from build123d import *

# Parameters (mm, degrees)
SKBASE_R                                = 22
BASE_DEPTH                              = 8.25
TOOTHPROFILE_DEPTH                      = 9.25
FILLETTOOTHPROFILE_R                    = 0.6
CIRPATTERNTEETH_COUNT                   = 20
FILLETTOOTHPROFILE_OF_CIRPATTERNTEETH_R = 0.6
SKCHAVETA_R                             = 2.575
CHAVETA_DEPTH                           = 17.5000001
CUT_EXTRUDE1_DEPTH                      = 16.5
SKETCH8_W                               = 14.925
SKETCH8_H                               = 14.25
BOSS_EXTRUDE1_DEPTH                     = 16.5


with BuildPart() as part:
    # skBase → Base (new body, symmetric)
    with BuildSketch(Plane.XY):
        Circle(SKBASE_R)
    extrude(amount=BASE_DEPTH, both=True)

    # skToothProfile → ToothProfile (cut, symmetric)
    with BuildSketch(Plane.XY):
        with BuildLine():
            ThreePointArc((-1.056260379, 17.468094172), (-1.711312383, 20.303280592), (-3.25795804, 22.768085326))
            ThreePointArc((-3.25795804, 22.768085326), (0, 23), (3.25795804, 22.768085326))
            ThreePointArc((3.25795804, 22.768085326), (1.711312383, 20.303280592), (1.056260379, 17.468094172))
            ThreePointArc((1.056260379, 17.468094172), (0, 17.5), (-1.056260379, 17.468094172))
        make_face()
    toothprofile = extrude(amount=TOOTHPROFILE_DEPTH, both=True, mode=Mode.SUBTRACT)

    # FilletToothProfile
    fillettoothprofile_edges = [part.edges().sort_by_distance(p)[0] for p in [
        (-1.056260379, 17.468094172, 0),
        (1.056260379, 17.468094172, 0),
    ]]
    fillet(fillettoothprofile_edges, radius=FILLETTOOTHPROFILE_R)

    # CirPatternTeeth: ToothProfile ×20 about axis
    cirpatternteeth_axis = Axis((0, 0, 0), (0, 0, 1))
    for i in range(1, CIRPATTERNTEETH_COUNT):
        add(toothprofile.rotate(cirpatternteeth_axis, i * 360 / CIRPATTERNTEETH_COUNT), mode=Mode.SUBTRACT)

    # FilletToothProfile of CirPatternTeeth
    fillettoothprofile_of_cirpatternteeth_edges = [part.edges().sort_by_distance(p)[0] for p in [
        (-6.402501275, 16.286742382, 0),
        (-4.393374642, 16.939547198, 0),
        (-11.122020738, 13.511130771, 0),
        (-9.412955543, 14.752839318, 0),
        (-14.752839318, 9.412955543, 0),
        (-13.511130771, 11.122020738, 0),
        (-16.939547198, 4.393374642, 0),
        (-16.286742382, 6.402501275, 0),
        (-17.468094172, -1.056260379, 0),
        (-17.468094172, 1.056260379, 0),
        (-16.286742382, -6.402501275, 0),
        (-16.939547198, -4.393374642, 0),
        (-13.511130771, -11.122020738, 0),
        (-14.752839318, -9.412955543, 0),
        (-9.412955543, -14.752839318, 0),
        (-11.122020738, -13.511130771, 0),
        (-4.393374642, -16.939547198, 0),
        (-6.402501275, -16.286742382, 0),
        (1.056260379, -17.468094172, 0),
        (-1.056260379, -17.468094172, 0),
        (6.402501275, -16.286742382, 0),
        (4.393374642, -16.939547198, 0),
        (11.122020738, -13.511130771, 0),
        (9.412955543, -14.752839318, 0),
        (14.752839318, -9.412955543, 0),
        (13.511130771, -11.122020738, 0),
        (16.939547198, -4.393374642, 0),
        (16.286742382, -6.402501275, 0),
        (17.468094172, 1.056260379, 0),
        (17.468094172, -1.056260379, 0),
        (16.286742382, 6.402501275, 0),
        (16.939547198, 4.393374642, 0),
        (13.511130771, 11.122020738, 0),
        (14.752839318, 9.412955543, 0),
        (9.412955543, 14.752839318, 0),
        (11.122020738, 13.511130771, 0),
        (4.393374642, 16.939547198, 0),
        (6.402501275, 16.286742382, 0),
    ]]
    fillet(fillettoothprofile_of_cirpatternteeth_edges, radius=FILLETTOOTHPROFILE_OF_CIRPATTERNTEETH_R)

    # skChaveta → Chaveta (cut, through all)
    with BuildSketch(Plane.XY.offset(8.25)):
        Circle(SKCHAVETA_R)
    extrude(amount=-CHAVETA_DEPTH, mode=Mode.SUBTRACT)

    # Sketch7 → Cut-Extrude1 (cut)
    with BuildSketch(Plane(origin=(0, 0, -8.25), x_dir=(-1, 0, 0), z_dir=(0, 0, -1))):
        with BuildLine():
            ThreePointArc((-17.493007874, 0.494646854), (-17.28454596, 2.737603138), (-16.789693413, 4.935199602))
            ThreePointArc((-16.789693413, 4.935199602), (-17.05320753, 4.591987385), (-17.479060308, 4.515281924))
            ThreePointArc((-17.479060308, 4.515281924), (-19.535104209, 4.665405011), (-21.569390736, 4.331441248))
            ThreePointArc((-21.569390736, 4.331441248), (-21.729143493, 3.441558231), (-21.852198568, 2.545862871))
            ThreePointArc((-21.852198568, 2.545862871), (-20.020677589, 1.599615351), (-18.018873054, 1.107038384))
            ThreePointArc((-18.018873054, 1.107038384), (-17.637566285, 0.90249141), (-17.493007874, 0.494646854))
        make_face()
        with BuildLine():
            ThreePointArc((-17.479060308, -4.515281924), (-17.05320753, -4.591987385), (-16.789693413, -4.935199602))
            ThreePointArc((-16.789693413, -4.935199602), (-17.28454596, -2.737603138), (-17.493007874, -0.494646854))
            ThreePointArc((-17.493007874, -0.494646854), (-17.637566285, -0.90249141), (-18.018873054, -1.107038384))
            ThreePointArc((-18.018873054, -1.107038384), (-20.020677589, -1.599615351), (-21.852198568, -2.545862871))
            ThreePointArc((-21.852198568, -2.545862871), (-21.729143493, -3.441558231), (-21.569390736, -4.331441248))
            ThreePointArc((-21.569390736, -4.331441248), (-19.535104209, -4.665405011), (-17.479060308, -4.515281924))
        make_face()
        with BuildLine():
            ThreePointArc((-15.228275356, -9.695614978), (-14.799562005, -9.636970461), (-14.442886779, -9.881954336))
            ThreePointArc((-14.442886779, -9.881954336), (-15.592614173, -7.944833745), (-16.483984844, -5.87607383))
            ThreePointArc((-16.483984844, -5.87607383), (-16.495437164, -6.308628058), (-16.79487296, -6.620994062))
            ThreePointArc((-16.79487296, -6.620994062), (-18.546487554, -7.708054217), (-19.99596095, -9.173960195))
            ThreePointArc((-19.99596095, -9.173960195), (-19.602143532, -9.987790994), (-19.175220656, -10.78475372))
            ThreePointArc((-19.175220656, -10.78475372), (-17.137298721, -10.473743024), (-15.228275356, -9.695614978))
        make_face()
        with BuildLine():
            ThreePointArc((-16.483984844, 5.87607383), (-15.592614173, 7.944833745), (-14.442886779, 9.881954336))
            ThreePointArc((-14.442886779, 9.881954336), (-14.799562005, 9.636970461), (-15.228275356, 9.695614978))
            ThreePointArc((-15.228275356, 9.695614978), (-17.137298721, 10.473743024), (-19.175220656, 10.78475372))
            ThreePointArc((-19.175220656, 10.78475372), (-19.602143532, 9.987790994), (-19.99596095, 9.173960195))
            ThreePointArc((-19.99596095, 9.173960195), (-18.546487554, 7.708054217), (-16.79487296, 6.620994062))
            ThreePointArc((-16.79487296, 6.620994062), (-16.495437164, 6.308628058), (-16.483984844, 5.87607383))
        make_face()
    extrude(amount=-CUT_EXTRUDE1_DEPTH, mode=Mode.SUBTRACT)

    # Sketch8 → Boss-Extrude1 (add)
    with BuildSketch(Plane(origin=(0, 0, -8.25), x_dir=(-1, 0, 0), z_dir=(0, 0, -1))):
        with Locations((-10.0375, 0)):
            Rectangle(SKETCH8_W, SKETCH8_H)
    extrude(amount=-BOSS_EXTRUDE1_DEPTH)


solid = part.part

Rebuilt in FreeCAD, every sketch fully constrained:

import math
import FreeCAD as App
import Part
import Sketcher
from FreeCAD import Vector
Q = App.Units.Quantity


def edges_at(feature, points):
    """Names of the edges that pass closest to the given points."""
    edges = feature.Shape.Edges
    near = lambda p: min(range(len(edges)), key=lambda i: edges[i].distToShape(Part.Vertex(*p))[0])
    return sorted({f"Edge{near(p) + 1}" for p in points})


def add_polygon(sketch, points):
    """Adds a closed chain of lines whose ends are joined by coincident constraints."""
    first, n = sketch.GeometryCount, len(points)
    for a, b in zip(points, points[1:] + points[:1]):
        sketch.addGeometry(Part.LineSegment(App.Vector(*a, 0), App.Vector(*b, 0)), False)
    for i in range(n):
        sketch.addConstraint(Sketcher.Constraint("Coincident", first + i, 2, first + (i + 1) % n, 1))

doc = App.newDocument("Part")
body = doc.addObject("PartDesign::Body", "Body")

# Sketch on XY plane
sketch1 = doc.addObject("Sketcher::SketchObject", "Sketch")
body.addObject(sketch1)
sketch1.AttachmentSupport = (doc.XY_Plane, [""])
sketch1.MapMode = "FlatFace"
sketch1.addGeometry(Part.Circle(Vector(0, 0, 0), Vector(0, 0, 1), 22), False)
sketch1.addConstraint([
    Sketcher.Constraint("Coincident", 0, 3, -1, 1),
    Sketcher.Constraint("Diameter", 0, Q("44 mm")),
])
pad1 = doc.addObject("PartDesign::Pad", "Pad")
body.addObject(pad1)
pad1.Profile = sketch1
pad1.Length = 16.5
pad1.Midplane = True

# Sketch on XY plane
sketch2 = doc.addObject("Sketcher::SketchObject", "Sketch001")
body.addObject(sketch2)
sketch2.AttachmentSupport = (doc.XY_Plane, [""])
sketch2.MapMode = "FlatFace"
sketch2.addGeometry([
    Part.ArcOfCircle(Part.Circle(Vector(-9.8, 16.9, 0), Vector(0, 0, 1), 8.8), math.radians(3), math.radians(42)),
    Part.ArcOfCircle(Part.Circle(Vector(0, 0, 0), Vector(0, 0, 1), 17.5), math.radians(86.54), math.radians(93.46)),
    Part.ArcOfCircle(Part.Circle(Vector(9.8, 16.9, 0), Vector(0, 0, 1), 8.8), math.radians(138), math.radians(177)),
    Part.ArcOfCircle(Part.Circle(Vector(0, 0, 0), Vector(0, 0, 1), 23), math.radians(81.86), math.radians(98.14)),
], False)
sketch2.addConstraint([
    Sketcher.Constraint("Coincident", 0, 1, 1, 2),
    Sketcher.Constraint("Coincident", 1, 1, 2, 2),
    Sketcher.Constraint("Coincident", 2, 1, 3, 1),
    Sketcher.Constraint("Coincident", 3, 2, 0, 2),
    Sketcher.Constraint("Coincident", 1, 3, -1, 1),
    Sketcher.Constraint("Coincident", 3, 3, -1, 1),
    Sketcher.Constraint("Equal", 0, 2),
    Sketcher.Constraint("Symmetric", 0, 3, 2, 3, -2),
    Sketcher.Constraint("Radius", 3, Q("23 mm")),
    Sketcher.Constraint("Radius", 1, Q("17.5 mm")),
    Sketcher.Constraint("Radius", 0, Q("8.77026 mm")),
    Sketcher.Constraint("DistanceX", 0, 3, -1, 1, Q("9.81053 mm")),
    Sketcher.Constraint("DistanceY", -1, 1, 0, 3, Q("16.938741 mm")),
])
pocket1 = doc.addObject("PartDesign::Pocket", "Pocket")
body.addObject(pocket1)
pocket1.Profile = sketch2
pocket1.Length = 18.5
pocket1.Midplane = True
doc.recompute()

fillet = doc.addObject("PartDesign::Fillet", "Fillet")
body.addObject(fillet)
fillet.Base = (pocket1, edges_at(pocket1, [(-1.056, 17.468, 0), (1.056, 17.468, 0)]))
fillet.Radius = 0.6
doc.recompute()

polarpattern = doc.addObject("PartDesign::PolarPattern", "PolarPattern")
body.addObject(polarpattern)
polarpattern.Originals = [pocket1]
polarpattern.Axis = (doc.Z_Axis, [""])
polarpattern.Angle = 360
polarpattern.Occurrences = 20
body.Tip = polarpattern
doc.recompute()

fillet2 = doc.addObject("PartDesign::Fillet", "Fillet001")
body.addObject(fillet2)
fillet2.Base = (polarpattern, edges_at(polarpattern, [
    (-6.403, 16.287, 0),
    (-4.393, 16.94, 0),
    (-11.122, 13.511, 0),
    (-9.413, 14.753, 0),
    (-14.753, 9.413, 0),
    (-13.511, 11.122, 0),
    (-16.94, 4.393, 0),
    (-16.287, 6.403, 0),
    (-17.468, -1.056, 0),
    (-17.468, 1.056, 0),
    (-16.287, -6.403, 0),
    (-16.94, -4.393, 0),
    (-13.511, -11.122, 0),
    (-14.753, -9.413, 0),
    (-9.413, -14.753, 0),
    (-11.122, -13.511, 0),
    (-4.393, -16.94, 0),
    (-6.403, -16.287, 0),
    (1.056, -17.468, 0),
    (-1.056, -17.468, 0),
    (6.403, -16.287, 0),
    (4.393, -16.94, 0),
    (11.122, -13.511, 0),
    (9.413, -14.753, 0),
    (14.753, -9.413, 0),
    (13.511, -11.122, 0),
    (16.94, -4.393, 0),
    (16.287, -6.403, 0),
    (17.468, 1.056, 0),
    (17.468, -1.056, 0),
    (16.287, 6.403, 0),
    (16.94, 4.393, 0),
    (13.511, 11.122, 0),
    (14.753, 9.413, 0),
    (9.413, 14.753, 0),
    (11.122, 13.511, 0),
    (4.393, 16.94, 0),
    (6.403, 16.287, 0),
]))
fillet2.Radius = 0.6

# Sketch on XY plane
sketch3 = doc.addObject("Sketcher::SketchObject", "Sketch002")
body.addObject(sketch3)
sketch3.AttachmentSupport = (doc.XY_Plane, [""])
sketch3.MapMode = "FlatFace"
sketch3.AttachmentOffset = App.Placement(Vector(0, 0, 8.25), App.Rotation())
sketch3.addGeometry(Part.Circle(Vector(0, 0, 0), Vector(0, 0, 1), 2.6), False)
sketch3.addConstraint([
    Sketcher.Constraint("Coincident", 0, 3, -1, 1),
    Sketcher.Constraint("Diameter", 0, Q("5.15 mm")),
])
pocket2 = doc.addObject("PartDesign::Pocket", "Pocket001")
body.addObject(pocket2)
pocket2.Profile = sketch3
pocket2.Type = "ThroughAll"

# Sketch on XY plane
sketch4 = doc.addObject("Sketcher::SketchObject", "Sketch003")
body.addObject(sketch4)
sketch4.AttachmentSupport = (doc.XY_Plane, [""])
sketch4.MapMode = "FlatFace"
sketch4.AttachmentOffset = App.Placement(Vector(0, 0, -8.25), App.Rotation())
sketch4.addGeometry([
    Part.ArcOfCircle(Part.Circle(Vector(0, 0, 0), Vector(0, 0, 1), 17.5), math.radians(1.62), math.radians(16.38)),  # 0
    Part.ArcOfCircle(Part.Circle(Vector(17.4, 5.1, 0), Vector(0, 0, 1), 0.6), math.radians(-164), math.radians(-79)),  # 1
    Part.ArcOfCircle(Part.Circle(Vector(19.1, -4.1, 0), Vector(0, 0, 1), 8.8), math.radians(74), math.radians(101)),  # 2
    Part.ArcOfCircle(Part.Circle(Vector(0, 0, 0), Vector(0, 0, 1), 22), math.radians(6.65), math.radians(11.35)),  # 3
    Part.ArcOfCircle(Part.Circle(Vector(16.9, 9.8, 0), Vector(0, 0, 1), 8.8), math.radians(-83), math.radians(-56)),  # 4
    Part.ArcOfCircle(Part.Circle(Vector(18.1, 0.5, 0), Vector(0, 0, 1), 0.6), math.radians(97), math.radians(182)),  # 5
    Part.ArcOfCircle(Part.Circle(Vector(17.4, -5.1, 0), Vector(0, 0, 1), 0.6), math.radians(79), math.radians(164)),  # 6
    Part.ArcOfCircle(Part.Circle(Vector(0, 0, 0), Vector(0, 0, 1), 17.5), math.radians(-16.38), math.radians(-1.62)),  # 7
    Part.ArcOfCircle(Part.Circle(Vector(18.1, -0.5, 0), Vector(0, 0, 1), 0.6), math.radians(178), math.radians(263)),  # 8
    Part.ArcOfCircle(Part.Circle(Vector(16.9, -9.8, 0), Vector(0, 0, 1), 8.8), math.radians(56), math.radians(83)),  # 9
    Part.ArcOfCircle(Part.Circle(Vector(0, 0, 0), Vector(0, 0, 1), 22), math.radians(-11.35), math.radians(-6.65)),  # 10
    Part.ArcOfCircle(Part.Circle(Vector(19.1, 4.1, 0), Vector(0, 0, 1), 8.8), math.radians(-101), math.radians(-74)),  # 11
    Part.ArcOfCircle(Part.Circle(Vector(14.9, -10.2, 0), Vector(0, 0, 1), 0.6), math.radians(61), math.radians(146)),  # 12
    Part.ArcOfCircle(Part.Circle(Vector(0, 0, 0), Vector(0, 0, 1), 17.5), math.radians(-34.38), math.radians(-19.62)),  # 13
    Part.ArcOfCircle(Part.Circle(Vector(17, -6.1, 0), Vector(0, 0, 1), 0.6), math.radians(160), math.radians(245)),  # 14
    Part.ArcOfCircle(Part.Circle(Vector(13.1, -14.6, 0), Vector(0, 0, 1), 8.8), math.radians(38), math.radians(65)),  # 15
    Part.ArcOfCircle(Part.Circle(Vector(0, 0, 0), Vector(0, 0, 1), 22), math.radians(-29.35), math.radians(-24.65)),  # 16
    Part.ArcOfCircle(Part.Circle(Vector(19.5, -2, 0), Vector(0, 0, 1), 8.8), math.radians(-119), math.radians(-92)),  # 17
    Part.ArcOfCircle(Part.Circle(Vector(0, 0, 0), Vector(0, 0, 1), 17.5), math.radians(19.62), math.radians(34.38)),  # 18
    Part.ArcOfCircle(Part.Circle(Vector(14.9, 10.2, 0), Vector(0, 0, 1), 0.6), math.radians(-146), math.radians(-61)),  # 19
    Part.ArcOfCircle(Part.Circle(Vector(19.5, 2, 0), Vector(0, 0, 1), 8.8), math.radians(92), math.radians(119)),  # 20
    Part.ArcOfCircle(Part.Circle(Vector(0, 0, 0), Vector(0, 0, 1), 22), math.radians(24.65), math.radians(29.35)),  # 21
    Part.ArcOfCircle(Part.Circle(Vector(13.1, 14.6, 0), Vector(0, 0, 1), 8.8), math.radians(-65), math.radians(-38)),  # 22
    Part.ArcOfCircle(Part.Circle(Vector(17, 6.1, 0), Vector(0, 0, 1), 0.6), math.radians(115), math.radians(200)),  # 23
], False)
sketch4.addConstraint([
    Sketcher.Constraint("Tangent", 0, 2, 1, 1),
    Sketcher.Constraint("Tangent", 1, 2, 2, 2),
    Sketcher.Constraint("Coincident", 2, 1, 3, 2),
    Sketcher.Constraint("Coincident", 3, 1, 4, 2),
    Sketcher.Constraint("Tangent", 4, 1, 5, 1),
    Sketcher.Constraint("Tangent", 5, 2, 0, 1),
    Sketcher.Constraint("Tangent", 6, 2, 7, 1),
    Sketcher.Constraint("Tangent", 7, 2, 8, 1),
    Sketcher.Constraint("Tangent", 8, 2, 9, 2),
    Sketcher.Constraint("Coincident", 9, 1, 10, 2),
    Sketcher.Constraint("Coincident", 10, 1, 11, 2),
    Sketcher.Constraint("Tangent", 11, 1, 6, 1),
    Sketcher.Constraint("Tangent", 12, 2, 13, 1),
    Sketcher.Constraint("Tangent", 13, 2, 14, 1),
    Sketcher.Constraint("Tangent", 14, 2, 15, 2),
    Sketcher.Constraint("Coincident", 15, 1, 16, 2),
    Sketcher.Constraint("Coincident", 16, 1, 17, 2),
    Sketcher.Constraint("Tangent", 17, 1, 12, 1),
    Sketcher.Constraint("Tangent", 18, 2, 19, 1),
    Sketcher.Constraint("Tangent", 19, 2, 20, 2),
    Sketcher.Constraint("Coincident", 20, 1, 21, 2),
    Sketcher.Constraint("Coincident", 21, 1, 22, 2),
    Sketcher.Constraint("Tangent", 22, 1, 23, 1),
    Sketcher.Constraint("Tangent", 23, 2, 18, 1),
    Sketcher.Constraint("Coincident", 0, 3, -1, 1),
    Sketcher.Constraint("Coincident", 3, 3, -1, 1),
    Sketcher.Constraint("Coincident", 7, 3, -1, 1),
    Sketcher.Constraint("Coincident", 10, 3, -1, 1),
    Sketcher.Constraint("Coincident", 13, 3, -1, 1),
    Sketcher.Constraint("Coincident", 16, 3, -1, 1),
    Sketcher.Constraint("Coincident", 18, 3, -1, 1),
    Sketcher.Constraint("Coincident", 21, 3, -1, 1),
    Sketcher.Constraint("Equal", 2, 4),
    Sketcher.Constraint("Equal", 1, 5),
    Sketcher.Constraint("Equal", 5, 6),
    Sketcher.Constraint("Equal", 0, 7),
    Sketcher.Constraint("Equal", 6, 8),
    Sketcher.Constraint("Equal", 4, 9),
    Sketcher.Constraint("Equal", 3, 10),
    Sketcher.Constraint("Equal", 9, 11),
    Sketcher.Constraint("Equal", 8, 12),
    Sketcher.Constraint("Equal", 7, 13),
    Sketcher.Constraint("Equal", 12, 14),
    Sketcher.Constraint("Equal", 11, 15),
    Sketcher.Constraint("Equal", 10, 16),
    Sketcher.Constraint("Equal", 15, 17),
    Sketcher.Constraint("Equal", 13, 18),
    Sketcher.Constraint("Equal", 14, 19),
    Sketcher.Constraint("Equal", 17, 20),
    Sketcher.Constraint("Equal", 16, 21),
    Sketcher.Constraint("Equal", 20, 22),
    Sketcher.Constraint("Equal", 19, 23),
    Sketcher.Constraint("Symmetric", 4, 3, 9, 3, -1),
    Sketcher.Constraint("Symmetric", 2, 3, 11, 3, -1),
    Sketcher.Constraint("Symmetric", 17, 3, 20, 3, -1),
    Sketcher.Constraint("Symmetric", 15, 3, 22, 3, -1),
    Sketcher.Constraint("Radius", 3, Q("22 mm")),
    Sketcher.Constraint("Radius", 0, Q("17.5 mm")),
    Sketcher.Constraint("Radius", 1, Q("0.6 mm")),
    Sketcher.Constraint("Radius", 2, Q("8.77026 mm")),
    Sketcher.Constraint("DistanceY", -1, 1, 0, 2, Q("4.9352 mm")),
    Sketcher.Constraint("DistanceX", -1, 1, 3, 1, Q("21.852199 mm")),
    Sketcher.Constraint("DistanceX", 4, 3, 1, 3, Q("0.426599 mm")),
    Sketcher.Constraint("DistanceY", 16, 1, 12, 2, Q("0.902799 mm")),
    Sketcher.Constraint("DistanceX", -1, 1, 2, 3, Q("19.141321 mm")),
    Sketcher.Constraint("DistanceX", -1, 1, 12, 3, Q("14.938071 mm")),
    Sketcher.Constraint("DistanceX", -1, 1, 14, 3, Q("17.04915 mm")),
    Sketcher.Constraint("DistanceX", -1, 1, 15, 3, Q("13.07808 mm")),
])
pocket3 = doc.addObject("PartDesign::Pocket", "Pocket002")
body.addObject(pocket3)
pocket3.Profile = sketch4
pocket3.Length = 16.5
pocket3.Reversed = True

# Sketch on XY plane
sketch5 = doc.addObject("Sketcher::SketchObject", "Sketch004")
body.addObject(sketch5)
sketch5.AttachmentSupport = (doc.XY_Plane, [""])
sketch5.MapMode = "FlatFace"
sketch5.AttachmentOffset = App.Placement(Vector(0, 0, -8.25), App.Rotation())
add_polygon(sketch5, [(18, 7), (18, -7), (3, -7), (3, 7)])  # lines 0-3
sketch5.addConstraint([
    Sketcher.Constraint("Vertical", 0),
    Sketcher.Constraint("Horizontal", 1),
    Sketcher.Constraint("Vertical", 2),
    Sketcher.Constraint("Horizontal", 3),
    Sketcher.Constraint("DistanceY", 0, 2, 0, 1, Q("14.25 mm")),
    Sketcher.Constraint("DistanceX", -1, 1, 0, 2, Q("17.5 mm")),
    Sketcher.Constraint("DistanceX", 1, 2, 1, 1, Q("14.925 mm")),
    Sketcher.Constraint("DistanceY", 0, 2, -1, 1, Q("7.125 mm")),
])
pad2 = doc.addObject("PartDesign::Pad", "Pad001")
body.addObject(pad2)
pad2.Profile = sketch5
pad2.Length = 16.5

doc.recompute()
